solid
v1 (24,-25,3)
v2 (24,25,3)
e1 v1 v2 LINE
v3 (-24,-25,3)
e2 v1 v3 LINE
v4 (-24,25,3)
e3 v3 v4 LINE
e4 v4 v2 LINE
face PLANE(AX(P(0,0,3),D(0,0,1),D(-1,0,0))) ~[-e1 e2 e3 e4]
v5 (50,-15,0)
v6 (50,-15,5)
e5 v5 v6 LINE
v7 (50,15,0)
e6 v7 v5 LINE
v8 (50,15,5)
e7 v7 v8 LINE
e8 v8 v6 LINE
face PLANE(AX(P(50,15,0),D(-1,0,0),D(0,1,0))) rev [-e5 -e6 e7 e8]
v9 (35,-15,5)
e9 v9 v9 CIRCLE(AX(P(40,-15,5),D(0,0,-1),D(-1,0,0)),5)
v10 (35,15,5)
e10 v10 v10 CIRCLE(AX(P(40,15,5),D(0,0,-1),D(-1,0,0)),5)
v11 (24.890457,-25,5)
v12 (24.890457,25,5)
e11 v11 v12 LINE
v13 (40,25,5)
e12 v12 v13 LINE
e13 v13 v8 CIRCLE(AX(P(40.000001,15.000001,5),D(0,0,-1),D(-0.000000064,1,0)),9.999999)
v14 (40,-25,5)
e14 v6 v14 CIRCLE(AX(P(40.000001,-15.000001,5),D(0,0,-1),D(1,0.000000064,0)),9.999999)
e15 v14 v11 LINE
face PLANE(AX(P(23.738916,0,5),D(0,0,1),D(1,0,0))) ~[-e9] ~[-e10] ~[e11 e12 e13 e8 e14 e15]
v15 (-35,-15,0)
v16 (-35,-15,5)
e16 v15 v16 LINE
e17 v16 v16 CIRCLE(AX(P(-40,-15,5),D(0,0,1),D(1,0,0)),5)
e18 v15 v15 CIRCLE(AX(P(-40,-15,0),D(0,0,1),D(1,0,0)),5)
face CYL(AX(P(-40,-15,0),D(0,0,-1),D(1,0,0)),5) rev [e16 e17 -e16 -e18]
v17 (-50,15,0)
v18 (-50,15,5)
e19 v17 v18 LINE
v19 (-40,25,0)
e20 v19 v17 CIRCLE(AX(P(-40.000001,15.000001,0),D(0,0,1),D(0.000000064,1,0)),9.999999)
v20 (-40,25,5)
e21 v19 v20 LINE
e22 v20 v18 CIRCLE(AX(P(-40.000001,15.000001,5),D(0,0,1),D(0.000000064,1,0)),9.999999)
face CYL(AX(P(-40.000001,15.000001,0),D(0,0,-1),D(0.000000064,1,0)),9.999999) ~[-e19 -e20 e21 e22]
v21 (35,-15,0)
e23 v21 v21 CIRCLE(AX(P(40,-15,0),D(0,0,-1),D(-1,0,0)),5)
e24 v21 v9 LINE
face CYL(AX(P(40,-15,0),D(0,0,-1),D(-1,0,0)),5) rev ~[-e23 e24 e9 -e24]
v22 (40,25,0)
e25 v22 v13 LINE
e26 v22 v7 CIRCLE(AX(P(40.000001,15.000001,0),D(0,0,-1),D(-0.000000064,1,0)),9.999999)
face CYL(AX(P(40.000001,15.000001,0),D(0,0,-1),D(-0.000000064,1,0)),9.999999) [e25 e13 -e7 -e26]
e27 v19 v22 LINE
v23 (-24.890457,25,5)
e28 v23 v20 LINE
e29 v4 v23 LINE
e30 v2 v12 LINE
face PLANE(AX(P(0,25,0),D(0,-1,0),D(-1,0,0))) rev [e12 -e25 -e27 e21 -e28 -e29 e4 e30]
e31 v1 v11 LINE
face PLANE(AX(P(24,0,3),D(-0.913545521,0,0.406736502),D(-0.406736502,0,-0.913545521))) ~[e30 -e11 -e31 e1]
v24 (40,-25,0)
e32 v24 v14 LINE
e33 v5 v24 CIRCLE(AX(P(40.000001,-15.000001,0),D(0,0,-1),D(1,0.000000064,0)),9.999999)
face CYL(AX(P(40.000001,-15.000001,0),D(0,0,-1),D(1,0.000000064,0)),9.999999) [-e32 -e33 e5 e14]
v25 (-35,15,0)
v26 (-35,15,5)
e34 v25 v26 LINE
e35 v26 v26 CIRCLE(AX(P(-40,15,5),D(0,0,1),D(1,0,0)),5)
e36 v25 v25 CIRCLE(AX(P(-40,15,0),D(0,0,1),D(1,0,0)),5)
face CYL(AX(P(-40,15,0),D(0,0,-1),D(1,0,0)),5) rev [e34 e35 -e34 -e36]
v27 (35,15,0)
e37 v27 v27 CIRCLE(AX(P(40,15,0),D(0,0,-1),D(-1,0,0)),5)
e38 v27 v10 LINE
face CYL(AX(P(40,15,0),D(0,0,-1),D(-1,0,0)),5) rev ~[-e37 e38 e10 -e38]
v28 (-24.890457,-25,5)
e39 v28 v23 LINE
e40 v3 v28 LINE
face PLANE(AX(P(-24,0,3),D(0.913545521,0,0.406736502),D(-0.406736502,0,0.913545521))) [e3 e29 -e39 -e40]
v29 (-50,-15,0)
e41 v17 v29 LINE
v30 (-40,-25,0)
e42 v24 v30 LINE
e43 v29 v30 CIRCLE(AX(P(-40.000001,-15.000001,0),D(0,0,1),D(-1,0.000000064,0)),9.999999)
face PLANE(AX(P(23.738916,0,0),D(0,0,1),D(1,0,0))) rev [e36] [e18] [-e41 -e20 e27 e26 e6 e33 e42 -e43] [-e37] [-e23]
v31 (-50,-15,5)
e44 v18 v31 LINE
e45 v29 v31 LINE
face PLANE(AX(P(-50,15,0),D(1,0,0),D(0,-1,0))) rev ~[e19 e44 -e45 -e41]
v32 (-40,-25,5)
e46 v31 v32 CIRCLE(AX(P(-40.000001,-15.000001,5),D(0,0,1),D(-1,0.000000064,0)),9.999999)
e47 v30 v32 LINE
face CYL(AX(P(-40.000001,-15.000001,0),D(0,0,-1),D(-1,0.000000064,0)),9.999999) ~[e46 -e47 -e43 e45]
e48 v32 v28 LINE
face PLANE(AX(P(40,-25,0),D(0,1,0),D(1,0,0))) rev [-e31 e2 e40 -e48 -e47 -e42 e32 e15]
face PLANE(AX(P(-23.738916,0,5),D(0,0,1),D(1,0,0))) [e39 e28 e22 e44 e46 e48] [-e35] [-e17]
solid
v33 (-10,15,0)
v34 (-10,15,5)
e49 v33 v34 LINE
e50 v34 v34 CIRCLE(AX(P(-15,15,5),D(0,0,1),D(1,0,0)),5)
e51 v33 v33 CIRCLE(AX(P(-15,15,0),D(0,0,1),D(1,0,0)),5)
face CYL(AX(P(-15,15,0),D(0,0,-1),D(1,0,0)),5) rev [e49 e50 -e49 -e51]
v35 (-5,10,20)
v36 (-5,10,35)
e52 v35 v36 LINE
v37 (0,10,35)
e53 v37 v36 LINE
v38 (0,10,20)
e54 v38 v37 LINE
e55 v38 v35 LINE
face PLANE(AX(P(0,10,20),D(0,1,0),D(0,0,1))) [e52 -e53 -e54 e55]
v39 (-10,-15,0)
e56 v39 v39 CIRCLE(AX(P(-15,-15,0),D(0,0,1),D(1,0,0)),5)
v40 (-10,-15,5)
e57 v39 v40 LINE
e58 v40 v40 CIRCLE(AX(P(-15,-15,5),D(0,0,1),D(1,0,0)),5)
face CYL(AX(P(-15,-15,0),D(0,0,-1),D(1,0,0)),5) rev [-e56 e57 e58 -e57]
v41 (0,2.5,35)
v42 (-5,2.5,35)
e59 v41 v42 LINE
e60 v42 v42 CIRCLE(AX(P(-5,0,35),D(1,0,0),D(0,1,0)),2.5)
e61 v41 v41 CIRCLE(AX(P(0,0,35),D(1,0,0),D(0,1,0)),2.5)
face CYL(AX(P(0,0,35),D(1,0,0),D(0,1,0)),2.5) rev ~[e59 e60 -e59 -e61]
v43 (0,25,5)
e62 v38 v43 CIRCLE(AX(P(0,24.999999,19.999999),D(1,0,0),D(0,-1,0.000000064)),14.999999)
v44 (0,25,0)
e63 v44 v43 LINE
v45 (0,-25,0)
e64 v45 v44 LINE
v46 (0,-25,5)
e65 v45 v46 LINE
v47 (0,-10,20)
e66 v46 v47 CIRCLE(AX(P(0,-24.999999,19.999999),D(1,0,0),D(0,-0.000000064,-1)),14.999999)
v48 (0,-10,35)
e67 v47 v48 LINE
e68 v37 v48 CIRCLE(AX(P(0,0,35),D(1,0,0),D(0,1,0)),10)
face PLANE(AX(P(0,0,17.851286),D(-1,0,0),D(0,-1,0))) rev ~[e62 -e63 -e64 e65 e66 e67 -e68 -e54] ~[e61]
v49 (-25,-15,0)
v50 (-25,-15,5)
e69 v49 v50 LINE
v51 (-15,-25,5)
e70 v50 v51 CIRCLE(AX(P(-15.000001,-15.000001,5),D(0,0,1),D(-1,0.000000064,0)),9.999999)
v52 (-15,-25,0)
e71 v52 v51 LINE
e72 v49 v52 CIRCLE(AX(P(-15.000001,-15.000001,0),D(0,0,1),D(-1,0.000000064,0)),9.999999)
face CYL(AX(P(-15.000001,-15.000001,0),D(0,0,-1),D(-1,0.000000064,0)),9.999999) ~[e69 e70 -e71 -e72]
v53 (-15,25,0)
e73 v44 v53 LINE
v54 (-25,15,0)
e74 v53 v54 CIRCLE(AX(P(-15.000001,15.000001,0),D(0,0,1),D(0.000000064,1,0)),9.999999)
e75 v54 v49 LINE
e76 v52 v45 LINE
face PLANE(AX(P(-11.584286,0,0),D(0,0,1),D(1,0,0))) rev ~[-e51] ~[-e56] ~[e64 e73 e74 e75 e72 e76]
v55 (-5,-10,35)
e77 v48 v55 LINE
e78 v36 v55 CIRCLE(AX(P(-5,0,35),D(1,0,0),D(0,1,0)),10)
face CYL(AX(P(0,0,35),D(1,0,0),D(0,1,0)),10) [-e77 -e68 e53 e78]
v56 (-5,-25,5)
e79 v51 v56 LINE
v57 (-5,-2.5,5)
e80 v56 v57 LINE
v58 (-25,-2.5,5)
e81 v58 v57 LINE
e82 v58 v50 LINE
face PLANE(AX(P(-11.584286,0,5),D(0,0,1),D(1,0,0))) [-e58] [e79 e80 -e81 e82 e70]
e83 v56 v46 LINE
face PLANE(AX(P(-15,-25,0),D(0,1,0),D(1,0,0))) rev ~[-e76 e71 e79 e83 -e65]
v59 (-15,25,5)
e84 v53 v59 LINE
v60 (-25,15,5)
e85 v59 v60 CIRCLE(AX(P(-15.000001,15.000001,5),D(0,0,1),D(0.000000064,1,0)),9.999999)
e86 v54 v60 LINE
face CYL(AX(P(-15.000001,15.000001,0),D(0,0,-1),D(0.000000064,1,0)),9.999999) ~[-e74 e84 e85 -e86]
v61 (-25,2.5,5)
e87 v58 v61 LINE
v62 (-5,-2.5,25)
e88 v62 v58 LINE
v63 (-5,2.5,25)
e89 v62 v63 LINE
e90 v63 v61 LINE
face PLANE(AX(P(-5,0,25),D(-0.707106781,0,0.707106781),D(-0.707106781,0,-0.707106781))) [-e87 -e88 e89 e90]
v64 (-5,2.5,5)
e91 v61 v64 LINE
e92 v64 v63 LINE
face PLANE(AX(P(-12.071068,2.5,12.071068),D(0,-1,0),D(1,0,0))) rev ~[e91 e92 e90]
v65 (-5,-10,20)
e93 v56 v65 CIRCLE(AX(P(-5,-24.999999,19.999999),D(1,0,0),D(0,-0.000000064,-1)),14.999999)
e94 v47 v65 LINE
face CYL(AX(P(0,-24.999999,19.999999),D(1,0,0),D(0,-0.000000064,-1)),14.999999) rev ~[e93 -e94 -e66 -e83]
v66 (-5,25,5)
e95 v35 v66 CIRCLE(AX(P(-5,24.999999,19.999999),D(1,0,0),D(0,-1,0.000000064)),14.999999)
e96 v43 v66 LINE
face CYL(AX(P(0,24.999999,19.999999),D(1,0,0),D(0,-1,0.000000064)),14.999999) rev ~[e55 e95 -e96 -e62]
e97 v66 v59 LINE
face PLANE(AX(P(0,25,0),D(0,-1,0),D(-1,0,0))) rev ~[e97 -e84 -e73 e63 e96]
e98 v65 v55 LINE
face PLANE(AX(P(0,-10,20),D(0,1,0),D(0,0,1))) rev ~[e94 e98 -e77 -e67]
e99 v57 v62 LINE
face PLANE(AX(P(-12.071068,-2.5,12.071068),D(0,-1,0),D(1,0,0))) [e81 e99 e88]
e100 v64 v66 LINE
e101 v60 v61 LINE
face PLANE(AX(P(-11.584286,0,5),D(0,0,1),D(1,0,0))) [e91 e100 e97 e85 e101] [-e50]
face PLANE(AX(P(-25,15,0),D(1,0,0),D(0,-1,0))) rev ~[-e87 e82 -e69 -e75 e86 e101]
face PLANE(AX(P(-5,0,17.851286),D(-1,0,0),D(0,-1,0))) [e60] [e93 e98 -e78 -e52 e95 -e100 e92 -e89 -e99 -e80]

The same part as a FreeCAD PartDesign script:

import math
import FreeCAD as App
import Part
import Sketcher

V = App.Vector
Q = App.Units.Quantity


def add_polygon(sketch, points):
    """Adds a closed chain of lines whose ends are joined by coincident constraints."""
    first, n = sketch.GeometryCount, len(points)
    for a, b in zip(points, points[1:] + points[:1]):
        sketch.addGeometry(Part.LineSegment(App.Vector(*a, 0), App.Vector(*b, 0)), False)
    for i in range(n):
        sketch.addConstraint(Sketcher.Constraint("Coincident", first + i, 2, first + (i + 1) % n, 1))

doc = App.newDocument("Part")
body = doc.addObject("PartDesign::Body", "Body")

sketch1 = body.newObject("Sketcher::SketchObject", "Sketch")
sketch1.AttachmentSupport = (doc.getObject("XY_Plane"), [""])
sketch1.MapMode = "FlatFace"
sketch1.addGeometry([
    Part.LineSegment(V(-50, 15, 0), V(-50, -15, 0)),
    Part.ArcOfCircle(Part.Circle(V(-40.000001, -15.000001, 0), V(0, 0, 1), 9.999999), math.radians(179.999996), math.radians(270.000004)),
    Part.LineSegment(V(-40, -25, 0), V(0, -25, 0)),
    Part.LineSegment(V(0, -25, 0), V(0, 25, 0)),
    Part.LineSegment(V(0, 25, 0), V(-40, 25, 0)),
    Part.ArcOfCircle(Part.Circle(V(-40.000001, 15.000001, 0), V(0, 0, 1), 9.999999), math.radians(89.999996), math.radians(180.000004)),
    Part.Circle(V(-40, -15, 0), V(0, 0, 1), 5),
    Part.Circle(V(-40, 15, 0), V(0, 0, 1), 5),
], False)
sketch1.addConstraint([
    Sketcher.Constraint("Tangent", 0, 2, 1, 1),
    Sketcher.Constraint("Tangent", 1, 2, 2, 1),
    Sketcher.Constraint("Coincident", 2, 2, 3, 1),
    Sketcher.Constraint("Coincident", 3, 2, 4, 1),
    Sketcher.Constraint("Tangent", 4, 2, 5, 1),
    Sketcher.Constraint("Tangent", 5, 2, 0, 1),
    Sketcher.Constraint("Vertical", 0),
    Sketcher.Constraint("Horizontal", 2),
    Sketcher.Constraint("Vertical", 3),
    Sketcher.Constraint("Horizontal", 4),
    Sketcher.Constraint("Coincident", 6, 3, 1, 3),
    Sketcher.Constraint("Coincident", 7, 3, 5, 3),
    Sketcher.Constraint("Equal", 1, 5),
    Sketcher.Constraint("Equal", 6, 7),
    Sketcher.Constraint("Symmetric", 2, 2, 3, 2, -1, 1),
    Sketcher.Constraint("Diameter", 6, Q("10 mm")),
    Sketcher.Constraint("Radius", 1, Q("9.999999 mm")),
    Sketcher.Constraint("DistanceX", 2, 1, 2, 2, Q("40 mm")),
    Sketcher.Constraint("DistanceY", 0, 2, 0, 1, Q("30 mm")),
])
pad1 = body.newObject("PartDesign::Pad", "Pad")
pad1.Profile = sketch1
pad1.Length = 5

sketch2 = body.newObject("Sketcher::SketchObject", "Sketch001")
sketch2.AttachmentSupport = (doc.getObject("XZ_Plane"), [""])
sketch2.MapMode = "FlatFace"
add_polygon(sketch2, [(-24, 3), (0, 3), (0, 5), (-24.890457, 5)])
sketch2.addConstraint([
    Sketcher.Constraint("Horizontal", 0),
    Sketcher.Constraint("Vertical", 1),
    Sketcher.Constraint("Horizontal", 2),
    Sketcher.Constraint("PointOnObject", 0, 2, -2),
    Sketcher.Constraint("DistanceX", 0, 1, 0, 2, Q("24 mm")),
    Sketcher.Constraint("DistanceY", 1, 1, 1, 2, Q("2 mm")),
    Sketcher.Constraint("Angle", 3, Q("-66.000009 deg")),
    Sketcher.Constraint("DistanceY", -1, 1, 0, 2, Q("3 mm")),
])
pocket1 = body.newObject("PartDesign::Pocket", "Pocket")
pocket1.Profile = sketch2
pocket1.Type = "ThroughAll"
pocket1.Midplane = True
body2 = doc.addObject("PartDesign::Body", "Body001")
doc.recompute()

body2.BaseFeature = body
doc.recompute()

mirroring = doc.addObject("Part::Mirroring", "Mirroring")
mirroring.Source = body
mirroring.Base = V(0, 0, 0)
mirroring.Normal = V(1, 0, 0)
body3 = doc.addObject("PartDesign::Body", "Body002")
body3.BaseFeature = mirroring
boolean = body2.newObject("PartDesign::Boolean", "Boolean")
boolean.Type = "Fuse"
boolean.addObjects([body3])
doc.recompute()
body4 = doc.addObject("PartDesign::Body", "Body003")

sketch3 = body4.newObject("Sketcher::SketchObject", "Sketch002")
sketch3.AttachmentSupport = (doc.getObject("XY_Plane003"), [""])
sketch3.MapMode = "FlatFace"
sketch3.addGeometry([
    Part.LineSegment(V(0, 25, 0), V(-15, 25, 0)),
    Part.ArcOfCircle(Part.Circle(V(-15.000001, 15.000001, 0), V(0, 0, 1), 9.999999), math.radians(89.999996), math.radians(180.000004)),
    Part.LineSegment(V(-25, 15, 0), V(-25, -15, 0)),
    Part.ArcOfCircle(Part.Circle(V(-15.000001, -15.000001, 0), V(0, 0, 1), 9.999999), math.radians(179.999996), math.radians(270.000004)),
    Part.LineSegment(V(-15, -25, 0), V(0, -25, 0)),
    Part.LineSegment(V(0, -25, 0), V(0, 25, 0)),
    Part.Circle(V(-15, -15, 0), V(0, 0, 1), 5),
    Part.Circle(V(-15, 15, 0), V(0, 0, 1), 5),
], False)
sketch3.addConstraint([
    Sketcher.Constraint("Tangent", 0, 2, 1, 1),
    Sketcher.Constraint("Tangent", 1, 2, 2, 1),
    Sketcher.Constraint("Tangent", 2, 2, 3, 1),
    Sketcher.Constraint("Tangent", 3, 2, 4, 1),
    Sketcher.Constraint("Coincident", 4, 2, 5, 1),
    Sketcher.Constraint("Coincident", 5, 2, 0, 1),
    Sketcher.Constraint("Horizontal", 0),
    Sketcher.Constraint("Vertical", 2),
    Sketcher.Constraint("Horizontal", 4),
    Sketcher.Constraint("Vertical", 5),
    Sketcher.Constraint("Coincident", 6, 3, 3, 3),
    Sketcher.Constraint("Coincident", 7, 3, 1, 3),
    Sketcher.Constraint("Equal", 1, 3),
    Sketcher.Constraint("Equal", 6, 7),
    Sketcher.Constraint("Symmetric", 4, 2, 5, 2, -1, 1),
    Sketcher.Constraint("Diameter", 6, Q("10 mm")),
    Sketcher.Constraint("Radius", 1, Q("9.999999 mm")),
    Sketcher.Constraint("DistanceX", 0, 2, 0, 1, Q("15 mm")),
    Sketcher.Constraint("DistanceY", 2, 2, 2, 1, Q("30 mm")),
])
pad2 = body4.newObject("PartDesign::Pad", "Pad001")
pad2.Profile = sketch3
pad2.Length = 5

sketch4 = body4.newObject("Sketcher::SketchObject", "Sketch003")
sketch4.AttachmentSupport = (doc.getObject("YZ_Plane003"), [""])
sketch4.MapMode = "FlatFace"
sketch4.addGeometry([
    Part.ArcOfCircle(Part.Circle(V(-24.999999, 19.999999, 0), V(0, 0, 1), 14.999999), math.radians(-90.000004), math.radians(0.000004)),
    Part.LineSegment(V(-25, 5, 0), V(25, 5, 0)),
    Part.ArcOfCircle(Part.Circle(V(24.999999, 19.999999, 0), V(0, 0, 1), 14.999999), math.radians(179.999996), math.radians(270.000004)),
    Part.LineSegment(V(10, 20, 0), V(10, 35, 0)),
    Part.ArcOfCircle(Part.Circle(V(0, 35, 0), V(0, 0, 1), 10), math.radians(0), math.radians(180)),
    Part.LineSegment(V(-10, 35, 0), V(-10, 20, 0)),
    Part.Circle(V(0, 35, 0), V(0, 0, 1), 2.5),
], False)
sketch4.addConstraint([
    Sketcher.Constraint("Tangent", 0, 1, 1, 1),
    Sketcher.Constraint("Tangent", 1, 2, 2, 2),
    Sketcher.Constraint("Tangent", 2, 1, 3, 1),
    Sketcher.Constraint("Tangent", 3, 2, 4, 1),
    Sketcher.Constraint("Tangent", 4, 2, 5, 1),
    Sketcher.Constraint("Tangent", 5, 2, 0, 2),
    Sketcher.Constraint("Horizontal", 1),
    Sketcher.Constraint("Vertical", 3),
    Sketcher.Constraint("Vertical", 5),
    Sketcher.Constraint("Coincident", 6, 3, 4, 3),
    Sketcher.Constraint("Equal", 0, 2),
    Sketcher.Constraint("PointOnObject", 4, 3, -2),
    Sketcher.Constraint("Diameter", 6, Q("5 mm")),
    Sketcher.Constraint("Radius", 0, Q("14.999999 mm")),
    Sketcher.Constraint("Radius", 4, Q("10 mm")),
    Sketcher.Constraint("DistanceY", 3, 1, 3, 2, Q("15 mm")),
    Sketcher.Constraint("DistanceY", -1, 1, 0, 3, Q("19.999999 mm")),
])
pad3 = body4.newObject("PartDesign::Pad", "Pad002")
pad3.Profile = sketch4
pad3.Length = 5
pad3.Reversed = True

sketch5 = body4.newObject("Sketcher::SketchObject", "Sketch004")
sketch5.AttachmentSupport = (doc.getObject("XZ_Plane003"), [""])
sketch5.MapMode = "FlatFace"
add_polygon(sketch5, [(-25, 5), (-5, 5), (-5, 25)])
sketch5.addConstraint([
    Sketcher.Constraint("Horizontal", 0),
    Sketcher.Constraint("Vertical", 1),
    Sketcher.Constraint("Equal", 0, 1),
    Sketcher.Constraint("DistanceX", 0, 1, 0, 2, Q("20 mm")),
    Sketcher.Constraint("DistanceX", 0, 2, -1, 1, Q("5 mm")),
    Sketcher.Constraint("DistanceY", -1, 1, 0, 2, Q("5 mm")),
])
pad4 = body4.newObject("PartDesign::Pad", "Pad003")
pad4.Profile = sketch5
pad4.Length = 5
pad4.Midplane = True
mirroring.Visibility = False

doc.recompute()
